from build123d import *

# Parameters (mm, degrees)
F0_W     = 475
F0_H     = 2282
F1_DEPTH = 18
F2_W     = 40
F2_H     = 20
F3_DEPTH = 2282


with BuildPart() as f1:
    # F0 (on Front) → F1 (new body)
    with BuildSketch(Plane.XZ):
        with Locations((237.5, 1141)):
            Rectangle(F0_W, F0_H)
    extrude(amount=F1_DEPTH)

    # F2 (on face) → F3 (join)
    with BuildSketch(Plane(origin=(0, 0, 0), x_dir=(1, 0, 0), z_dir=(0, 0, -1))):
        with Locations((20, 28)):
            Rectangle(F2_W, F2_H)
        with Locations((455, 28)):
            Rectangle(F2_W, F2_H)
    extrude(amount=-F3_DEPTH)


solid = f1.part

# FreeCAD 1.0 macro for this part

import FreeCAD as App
import Part
import Sketcher

V = App.Vector


def add_polygon(sketch, points):
    """Adds a closed chain of lines whose ends are joined by coincident constraints."""
    first, n = sketch.GeometryCount, len(points)
    for a, b in zip(points, points[1:] + points[:1]):
        sketch.addGeometry(Part.LineSegment(App.Vector(*a, 0), App.Vector(*b, 0)), False)
    for i in range(n):
        sketch.addConstraint(Sketcher.Constraint("Coincident", first + i, 2, first + (i + 1) % n, 1))

doc = App.newDocument("Part")
params = doc.addObject("Spreadsheet::Sheet", "Params")
for row, (alias, value) in enumerate([
    ("sketch1_width", "475 mm"),
    ("sketch1_height", "2282 mm"),
    ("pad1_length", "18 mm"),
    ("sketch2_width", "40 mm"),
    ("sketch2_height", "20 mm"),
    ("pad2_length", "2282 mm"),
], start=1):
    params.set(f"A{row}", alias)
    params.set(f"B{row}", "=" + value)
    params.setAlias(f"B{row}", alias)

body = doc.addObject("PartDesign::Body", "Body")

sketch1 = doc.addObject("Sketcher::SketchObject", "Sketch")
body.addObject(sketch1)
sketch1.AttachmentSupport = (doc.XZ_Plane, [""])
sketch1.MapMode = "FlatFace"
add_polygon(sketch1, [(0, 2282), (0, 0), (475, 0), (475, 2282)])
sketch1.addConstraint([
    Sketcher.Constraint("Vertical", 0),
    Sketcher.Constraint("Horizontal", 1),
    Sketcher.Constraint("Vertical", 2),
    Sketcher.Constraint("Horizontal", 3),
    Sketcher.Constraint("Coincident", 0, 2, -1, 1),
    Sketcher.Constraint("DistanceX", 1, 1, 1, 2, 475.0),
    Sketcher.Constraint("DistanceY", 0, 2, 0, 1, 2282.0),
])
sketch1.setExpression("Constraints[9]", "Params.sketch1_width")
sketch1.setExpression("Constraints[10]", "Params.sketch1_height")
pad1 = doc.addObject("PartDesign::Pad", "Pad")
body.addObject(pad1)
pad1.Profile = sketch1
pad1.setExpression("Length", "Params.pad1_length")

sketch2 = doc.addObject("Sketcher::SketchObject", "Sketch001")
body.addObject(sketch2)
sketch2.AttachmentSupport = (doc.XY_Plane, [""])
sketch2.MapMode = "FlatFace"
add_polygon(sketch2, [(0, -38), (0, -18), (40, -18), (40, -38)])
add_polygon(sketch2, [(435, -38), (435, -18), (475, -18), (475, -38)])
sketch2.addConstraint([
    Sketcher.Constraint("Vertical", 0),
    Sketcher.Constraint("Horizontal", 1),
    Sketcher.Constraint("Vertical", 2),
    Sketcher.Constraint("Horizontal", 3),
    Sketcher.Constraint("Vertical", 4),
    Sketcher.Constraint("Horizontal", 5),
    Sketcher.Constraint("Vertical", 6),
    Sketcher.Constraint("Horizontal", 7),
    Sketcher.Constraint("PointOnObject", 0, 2, -2),
    Sketcher.Constraint("Horizontal", 1, 2, 4, 2),
    Sketcher.Constraint("Horizontal", 3, 2, 6, 2),
    Sketcher.Constraint("Equal", 3, 5),
    Sketcher.Constraint("DistanceX", 1, 1, 1, 2, 40.0),
    Sketcher.Constraint("DistanceY", 0, 1, 0, 2, 20.0),
    Sketcher.Constraint("DistanceY", 0, 2, -1, 1, 18.0),
    Sketcher.Constraint("DistanceX", -1, 1, 4, 2, 435.0),
])
sketch2.setExpression("Constraints[20]", "Params.sketch2_width")
sketch2.setExpression("Constraints[21]", "Params.sketch2_height")
pad2 = doc.addObject("PartDesign::Pad", "Pad001")
body.addObject(pad2)
pad2.Profile = sketch2
pad2.setExpression("Length", "Params.pad2_length")

doc.recompute()
